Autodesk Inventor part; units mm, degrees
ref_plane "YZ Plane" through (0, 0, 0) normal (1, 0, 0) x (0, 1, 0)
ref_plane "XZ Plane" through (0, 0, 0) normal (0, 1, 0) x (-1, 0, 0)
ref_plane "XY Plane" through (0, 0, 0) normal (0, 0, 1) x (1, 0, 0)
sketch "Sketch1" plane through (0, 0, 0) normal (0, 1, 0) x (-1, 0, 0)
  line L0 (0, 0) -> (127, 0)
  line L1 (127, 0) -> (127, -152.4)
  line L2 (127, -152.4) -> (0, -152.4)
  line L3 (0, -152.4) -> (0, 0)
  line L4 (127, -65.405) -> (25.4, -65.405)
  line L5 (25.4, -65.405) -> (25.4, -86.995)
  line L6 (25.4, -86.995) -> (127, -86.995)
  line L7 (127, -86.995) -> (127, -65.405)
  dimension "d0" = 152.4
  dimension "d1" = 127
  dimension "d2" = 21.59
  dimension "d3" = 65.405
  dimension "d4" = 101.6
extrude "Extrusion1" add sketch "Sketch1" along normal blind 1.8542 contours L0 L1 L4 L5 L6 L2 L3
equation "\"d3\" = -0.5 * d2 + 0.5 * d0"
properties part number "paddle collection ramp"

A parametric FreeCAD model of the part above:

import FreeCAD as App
import Part
import Sketcher
Q = App.Units.Quantity


def add_polygon(sketch, points):
    """Adds a closed chain of lines whose ends are joined by coincident constraints."""
    first, n = sketch.GeometryCount, len(points)
    for a, b in zip(points, points[1:] + points[:1]):
        sketch.addGeometry(Part.LineSegment(App.Vector(*a, 0), App.Vector(*b, 0)), False)
    for i in range(n):
        sketch.addConstraint(Sketcher.Constraint("Coincident", first + i, 2, first + (i + 1) % n, 1))

doc = App.newDocument("Part")
params = doc.addObject("Spreadsheet::Sheet", "Params")
for row, (alias, value) in enumerate([
    ("sketch1_width", "5 in"),
    ("sketch1_width2", "4 in"),
    ("sketch1_height", "6 in"),
    ("sketch1_height2", "0.85 in"),
    ("pad1_length", "0.073 in"),
], start=1):
    params.set(f"A{row}", alias)
    params.set(f"B{row}", "=" + value)
    params.setAlias(f"B{row}", alias)

body = doc.addObject("PartDesign::Body", "Body")

sketch1 = body.newObject("Sketcher::SketchObject", "Sketch")
sketch1.AttachmentSupport = (doc.getObject("XZ_Plane"), [""])
sketch1.MapMode = "FlatFace"
add_polygon(sketch1, [(-127, 0), (0, 0), (0, -152.4), (-127, -152.4), (-127, -86.995), (-25.4, -86.995), (-25.4, -65.405), (-127, -65.405)])
sketch1.addConstraint([
    Sketcher.Constraint("Horizontal", 0),
    Sketcher.Constraint("Vertical", 1),
    Sketcher.Constraint("Horizontal", 2),
    Sketcher.Constraint("Vertical", 3),
    Sketcher.Constraint("Horizontal", 4),
    Sketcher.Constraint("Vertical", 5),
    Sketcher.Constraint("Horizontal", 6),
    Sketcher.Constraint("Vertical", 7),
    Sketcher.Constraint("Coincident", 0, 2, -1, 1),
    Sketcher.Constraint("Vertical", 3, 2, 6, 2),
    Sketcher.Constraint("Equal", 3, 7),
    Sketcher.Constraint("DistanceX", 0, 1, 0, 2, Q("5 in")),
    Sketcher.Constraint("DistanceX", 4, 1, 4, 2, Q("4 in")),
    Sketcher.Constraint("DistanceY", 1, 2, 1, 1, Q("6 in")),
    Sketcher.Constraint("DistanceY", 5, 1, 5, 2, Q("0.85 in")),
])
sketch1.setExpression("Constraints[19]", "Params.sketch1_width")
sketch1.setExpression("Constraints[20]", "Params.sketch1_width2")
sketch1.setExpression("Constraints[21]", "Params.sketch1_height")
sketch1.setExpression("Constraints[22]", "Params.sketch1_height2")
pad1 = body.newObject("PartDesign::Pad", "Pad")
pad1.Profile = sketch1
pad1.setExpression("Length", "Params.pad1_length")
pad1.Reversed = True

doc.recompute()
